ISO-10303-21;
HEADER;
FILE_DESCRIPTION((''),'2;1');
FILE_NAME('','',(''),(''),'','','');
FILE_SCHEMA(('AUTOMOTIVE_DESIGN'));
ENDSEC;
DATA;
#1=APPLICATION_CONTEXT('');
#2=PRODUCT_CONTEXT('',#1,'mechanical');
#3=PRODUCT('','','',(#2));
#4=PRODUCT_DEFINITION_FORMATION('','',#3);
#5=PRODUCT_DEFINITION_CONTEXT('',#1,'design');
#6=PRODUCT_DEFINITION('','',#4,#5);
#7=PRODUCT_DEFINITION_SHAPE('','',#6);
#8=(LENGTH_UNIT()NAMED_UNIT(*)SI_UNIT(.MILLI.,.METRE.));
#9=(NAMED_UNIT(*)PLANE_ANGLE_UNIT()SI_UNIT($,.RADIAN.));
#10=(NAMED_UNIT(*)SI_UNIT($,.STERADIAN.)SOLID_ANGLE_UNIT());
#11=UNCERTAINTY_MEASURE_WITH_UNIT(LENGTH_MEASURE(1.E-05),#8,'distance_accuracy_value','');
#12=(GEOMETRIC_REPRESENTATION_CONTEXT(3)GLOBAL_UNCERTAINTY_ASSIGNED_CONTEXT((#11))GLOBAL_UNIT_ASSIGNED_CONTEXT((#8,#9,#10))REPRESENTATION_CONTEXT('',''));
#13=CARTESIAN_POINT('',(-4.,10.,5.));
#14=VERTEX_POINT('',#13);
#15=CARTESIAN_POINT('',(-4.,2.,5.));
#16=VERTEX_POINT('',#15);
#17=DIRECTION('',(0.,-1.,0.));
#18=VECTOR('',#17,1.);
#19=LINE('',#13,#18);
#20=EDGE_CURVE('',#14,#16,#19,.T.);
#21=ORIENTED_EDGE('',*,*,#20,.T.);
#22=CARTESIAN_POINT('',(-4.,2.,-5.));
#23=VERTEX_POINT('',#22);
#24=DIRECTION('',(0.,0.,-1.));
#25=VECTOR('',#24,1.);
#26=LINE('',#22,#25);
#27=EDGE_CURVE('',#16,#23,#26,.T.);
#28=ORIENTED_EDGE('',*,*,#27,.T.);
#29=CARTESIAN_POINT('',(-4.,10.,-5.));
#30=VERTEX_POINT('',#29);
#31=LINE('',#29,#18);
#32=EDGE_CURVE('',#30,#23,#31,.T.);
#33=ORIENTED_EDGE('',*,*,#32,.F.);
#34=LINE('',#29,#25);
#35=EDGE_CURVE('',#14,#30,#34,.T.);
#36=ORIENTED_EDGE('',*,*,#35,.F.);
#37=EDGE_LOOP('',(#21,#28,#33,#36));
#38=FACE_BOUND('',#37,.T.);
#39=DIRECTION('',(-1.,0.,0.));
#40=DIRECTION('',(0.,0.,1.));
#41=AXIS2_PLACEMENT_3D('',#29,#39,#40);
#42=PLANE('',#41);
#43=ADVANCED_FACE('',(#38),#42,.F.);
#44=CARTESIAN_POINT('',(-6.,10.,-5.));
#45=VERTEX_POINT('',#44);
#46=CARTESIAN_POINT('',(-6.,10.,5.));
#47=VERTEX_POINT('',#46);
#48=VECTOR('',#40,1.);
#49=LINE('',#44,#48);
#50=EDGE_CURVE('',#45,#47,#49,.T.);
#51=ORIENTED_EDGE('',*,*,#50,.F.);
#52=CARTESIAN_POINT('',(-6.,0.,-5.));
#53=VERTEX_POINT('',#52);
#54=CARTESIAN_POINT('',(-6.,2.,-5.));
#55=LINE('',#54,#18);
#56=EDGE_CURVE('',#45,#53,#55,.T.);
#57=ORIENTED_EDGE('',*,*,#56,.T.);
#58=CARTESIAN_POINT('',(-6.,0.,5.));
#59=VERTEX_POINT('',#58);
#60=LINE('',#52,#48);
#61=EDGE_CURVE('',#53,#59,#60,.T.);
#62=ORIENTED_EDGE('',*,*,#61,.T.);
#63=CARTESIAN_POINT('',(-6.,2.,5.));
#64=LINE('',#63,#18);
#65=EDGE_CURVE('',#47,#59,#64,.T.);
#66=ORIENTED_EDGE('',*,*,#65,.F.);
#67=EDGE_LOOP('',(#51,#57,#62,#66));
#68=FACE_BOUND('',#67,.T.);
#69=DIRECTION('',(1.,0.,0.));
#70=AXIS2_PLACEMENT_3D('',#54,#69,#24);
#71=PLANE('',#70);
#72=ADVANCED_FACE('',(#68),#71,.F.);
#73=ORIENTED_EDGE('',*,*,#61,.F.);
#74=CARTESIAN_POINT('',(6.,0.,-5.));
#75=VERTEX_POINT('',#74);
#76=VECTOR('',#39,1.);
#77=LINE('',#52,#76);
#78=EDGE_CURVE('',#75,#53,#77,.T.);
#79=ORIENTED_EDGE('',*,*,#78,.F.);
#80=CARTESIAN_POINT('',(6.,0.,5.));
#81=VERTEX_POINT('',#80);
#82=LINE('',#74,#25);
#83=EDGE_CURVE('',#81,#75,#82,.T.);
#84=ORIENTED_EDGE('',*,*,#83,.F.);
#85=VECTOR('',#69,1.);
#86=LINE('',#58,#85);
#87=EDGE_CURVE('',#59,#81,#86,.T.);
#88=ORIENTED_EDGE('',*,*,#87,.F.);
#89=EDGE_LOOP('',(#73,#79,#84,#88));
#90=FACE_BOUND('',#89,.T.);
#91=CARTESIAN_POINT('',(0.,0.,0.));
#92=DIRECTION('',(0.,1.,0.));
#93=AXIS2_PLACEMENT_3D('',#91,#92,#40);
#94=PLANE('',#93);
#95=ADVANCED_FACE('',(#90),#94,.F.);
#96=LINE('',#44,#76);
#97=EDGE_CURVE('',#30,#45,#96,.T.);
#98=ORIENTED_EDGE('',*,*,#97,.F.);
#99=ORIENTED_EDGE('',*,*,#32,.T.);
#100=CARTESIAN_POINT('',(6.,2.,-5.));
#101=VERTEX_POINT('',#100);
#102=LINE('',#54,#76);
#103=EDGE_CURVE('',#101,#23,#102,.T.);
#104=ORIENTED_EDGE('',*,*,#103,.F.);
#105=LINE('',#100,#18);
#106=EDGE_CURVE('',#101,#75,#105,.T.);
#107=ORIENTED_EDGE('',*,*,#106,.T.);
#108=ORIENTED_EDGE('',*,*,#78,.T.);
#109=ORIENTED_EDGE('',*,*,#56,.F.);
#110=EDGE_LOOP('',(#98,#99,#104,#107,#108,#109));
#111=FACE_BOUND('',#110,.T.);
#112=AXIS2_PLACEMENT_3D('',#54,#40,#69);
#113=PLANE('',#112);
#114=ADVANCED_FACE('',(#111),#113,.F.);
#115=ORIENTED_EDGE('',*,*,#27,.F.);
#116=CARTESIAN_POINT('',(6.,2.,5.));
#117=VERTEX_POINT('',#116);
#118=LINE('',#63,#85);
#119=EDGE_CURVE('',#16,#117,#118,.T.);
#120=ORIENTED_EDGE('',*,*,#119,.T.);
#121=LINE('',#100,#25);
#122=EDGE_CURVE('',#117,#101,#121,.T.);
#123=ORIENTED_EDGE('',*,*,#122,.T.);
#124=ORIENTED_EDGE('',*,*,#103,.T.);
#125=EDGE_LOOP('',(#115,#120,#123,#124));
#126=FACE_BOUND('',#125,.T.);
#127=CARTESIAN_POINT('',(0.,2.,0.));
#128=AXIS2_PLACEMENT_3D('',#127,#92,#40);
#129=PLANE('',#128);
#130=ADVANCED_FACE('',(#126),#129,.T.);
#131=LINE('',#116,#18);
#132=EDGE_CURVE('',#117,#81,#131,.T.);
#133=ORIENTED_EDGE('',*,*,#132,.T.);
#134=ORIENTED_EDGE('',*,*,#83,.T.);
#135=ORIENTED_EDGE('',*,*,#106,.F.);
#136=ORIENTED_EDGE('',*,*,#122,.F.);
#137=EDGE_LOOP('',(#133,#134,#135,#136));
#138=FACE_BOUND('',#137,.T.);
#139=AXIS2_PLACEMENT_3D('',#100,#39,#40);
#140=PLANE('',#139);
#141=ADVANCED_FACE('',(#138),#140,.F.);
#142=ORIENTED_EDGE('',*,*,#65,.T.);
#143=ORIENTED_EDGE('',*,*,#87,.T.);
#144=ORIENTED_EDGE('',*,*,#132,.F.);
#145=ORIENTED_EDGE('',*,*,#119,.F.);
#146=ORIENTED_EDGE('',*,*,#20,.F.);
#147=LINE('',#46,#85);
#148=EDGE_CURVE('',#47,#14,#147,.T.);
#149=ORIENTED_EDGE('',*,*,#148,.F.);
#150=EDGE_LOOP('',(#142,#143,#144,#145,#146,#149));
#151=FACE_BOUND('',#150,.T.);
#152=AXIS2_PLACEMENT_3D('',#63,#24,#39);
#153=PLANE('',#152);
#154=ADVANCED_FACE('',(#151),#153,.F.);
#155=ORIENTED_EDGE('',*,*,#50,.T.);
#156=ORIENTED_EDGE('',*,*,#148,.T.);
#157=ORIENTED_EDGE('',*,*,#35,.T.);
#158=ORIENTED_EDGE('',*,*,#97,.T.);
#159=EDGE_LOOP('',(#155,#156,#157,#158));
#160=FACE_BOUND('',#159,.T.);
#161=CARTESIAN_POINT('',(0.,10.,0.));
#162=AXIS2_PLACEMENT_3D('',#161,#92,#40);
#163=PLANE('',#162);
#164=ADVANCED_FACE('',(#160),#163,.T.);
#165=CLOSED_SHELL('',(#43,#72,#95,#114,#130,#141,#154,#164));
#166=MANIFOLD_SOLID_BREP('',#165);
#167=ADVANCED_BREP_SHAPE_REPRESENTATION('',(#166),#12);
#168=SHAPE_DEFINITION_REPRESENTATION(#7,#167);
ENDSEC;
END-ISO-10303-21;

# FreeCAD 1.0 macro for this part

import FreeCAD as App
import Part
import Sketcher
from FreeCAD import Vector
Q = App.Units.Quantity


def add_polygon(sketch, points):
    """Adds a closed chain of lines whose ends are joined by coincident constraints."""
    first, n = sketch.GeometryCount, len(points)
    for a, b in zip(points, points[1:] + points[:1]):
        sketch.addGeometry(Part.LineSegment(App.Vector(*a, 0), App.Vector(*b, 0)), False)
    for i in range(n):
        sketch.addConstraint(Sketcher.Constraint("Coincident", first + i, 2, first + (i + 1) % n, 1))

doc = App.newDocument("Part")
body = doc.addObject("PartDesign::Body", "Body")

sketch1 = body.newObject("Sketcher::SketchObject", "Sketch")
sketch1.AttachmentSupport = (doc.getObject("XZ_Plane"), [""])
sketch1.MapMode = "FlatFace"
add_polygon(sketch1, [(-6, -5), (-6, 5), (6, 5), (6, -5)])
sketch1.addConstraint(Sketcher.Constraint("Vertical", 0))
sketch1.addConstraint(Sketcher.Constraint("Horizontal", 1))
sketch1.addConstraint(Sketcher.Constraint("Vertical", 2))
sketch1.addConstraint(Sketcher.Constraint("Horizontal", 3))
sketch1.addConstraint(Sketcher.Constraint("Symmetric", 0, 2, 2, 2, -1, 1))
sketch1.addConstraint(Sketcher.Constraint("DistanceX", 1, 1, 1, 2, Q("12 mm")))
sketch1.addConstraint(Sketcher.Constraint("DistanceY", 0, 1, 0, 2, Q("10 mm")))
pad1 = body.newObject("PartDesign::Pad", "Pad")
pad1.Profile = sketch1
pad1.Length = 2
pad1.Reversed = True

sketch2 = body.newObject("Sketcher::SketchObject", "Sketch001")
sketch2.AttachmentSupport = (doc.getObject("XZ_Plane"), [""])
sketch2.MapMode = "FlatFace"
sketch2.AttachmentOffset = App.Placement(Vector(0, 0, -2), App.Rotation())
add_polygon(sketch2, [(-6, -5), (-6, 5), (-4, 5), (-4, -5)])
sketch2.addConstraint(Sketcher.Constraint("Vertical", 0))
sketch2.addConstraint(Sketcher.Constraint("Horizontal", 1))
sketch2.addConstraint(Sketcher.Constraint("Vertical", 2))
sketch2.addConstraint(Sketcher.Constraint("Horizontal", 3))
sketch2.addConstraint(Sketcher.Constraint("DistanceX", 1, 1, 1, 2, Q("2 mm")))
sketch2.addConstraint(Sketcher.Constraint("DistanceY", 0, 1, 0, 2, Q("10 mm")))
sketch2.addConstraint(Sketcher.Constraint("DistanceX", 0, 2, -1, 1, Q("6 mm")))
sketch2.addConstraint(Sketcher.Constraint("DistanceY", -1, 1, 0, 2, Q("5 mm")))
pad2 = body.newObject("PartDesign::Pad", "Pad001")
pad2.Profile = sketch2
pad2.Length = 8
pad2.Reversed = True

doc.recompute()
